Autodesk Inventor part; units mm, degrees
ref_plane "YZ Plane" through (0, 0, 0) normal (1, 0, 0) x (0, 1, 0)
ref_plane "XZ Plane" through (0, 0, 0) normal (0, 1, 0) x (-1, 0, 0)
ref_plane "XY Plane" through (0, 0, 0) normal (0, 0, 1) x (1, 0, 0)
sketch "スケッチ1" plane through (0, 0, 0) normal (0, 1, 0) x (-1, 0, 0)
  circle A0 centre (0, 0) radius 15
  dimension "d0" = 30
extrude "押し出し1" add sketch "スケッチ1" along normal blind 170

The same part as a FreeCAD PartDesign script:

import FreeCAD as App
import Part
import Sketcher
from FreeCAD import Vector

doc = App.newDocument("Part")
body = doc.addObject("PartDesign::Body", "Body")

# Sketch on XZ plane
sketch1 = body.newObject("Sketcher::SketchObject", "Sketch")
sketch1.AttachmentSupport = (doc.getObject("XZ_Plane"), [""])
sketch1.MapMode = "FlatFace"
sketch1.addGeometry(Part.Circle(Vector(0, 0, 0), Vector(0, 0, 1), 15), False)
sketch1.addConstraint([
    Sketcher.Constraint("Coincident", 0, 3, -1, 1),
    Sketcher.Constraint("Diameter", 0, 30.0),
])
pad1 = body.newObject("PartDesign::Pad", "Pad")
pad1.Profile = sketch1
pad1.Length = 170
pad1.Reversed = True

doc.recompute()
